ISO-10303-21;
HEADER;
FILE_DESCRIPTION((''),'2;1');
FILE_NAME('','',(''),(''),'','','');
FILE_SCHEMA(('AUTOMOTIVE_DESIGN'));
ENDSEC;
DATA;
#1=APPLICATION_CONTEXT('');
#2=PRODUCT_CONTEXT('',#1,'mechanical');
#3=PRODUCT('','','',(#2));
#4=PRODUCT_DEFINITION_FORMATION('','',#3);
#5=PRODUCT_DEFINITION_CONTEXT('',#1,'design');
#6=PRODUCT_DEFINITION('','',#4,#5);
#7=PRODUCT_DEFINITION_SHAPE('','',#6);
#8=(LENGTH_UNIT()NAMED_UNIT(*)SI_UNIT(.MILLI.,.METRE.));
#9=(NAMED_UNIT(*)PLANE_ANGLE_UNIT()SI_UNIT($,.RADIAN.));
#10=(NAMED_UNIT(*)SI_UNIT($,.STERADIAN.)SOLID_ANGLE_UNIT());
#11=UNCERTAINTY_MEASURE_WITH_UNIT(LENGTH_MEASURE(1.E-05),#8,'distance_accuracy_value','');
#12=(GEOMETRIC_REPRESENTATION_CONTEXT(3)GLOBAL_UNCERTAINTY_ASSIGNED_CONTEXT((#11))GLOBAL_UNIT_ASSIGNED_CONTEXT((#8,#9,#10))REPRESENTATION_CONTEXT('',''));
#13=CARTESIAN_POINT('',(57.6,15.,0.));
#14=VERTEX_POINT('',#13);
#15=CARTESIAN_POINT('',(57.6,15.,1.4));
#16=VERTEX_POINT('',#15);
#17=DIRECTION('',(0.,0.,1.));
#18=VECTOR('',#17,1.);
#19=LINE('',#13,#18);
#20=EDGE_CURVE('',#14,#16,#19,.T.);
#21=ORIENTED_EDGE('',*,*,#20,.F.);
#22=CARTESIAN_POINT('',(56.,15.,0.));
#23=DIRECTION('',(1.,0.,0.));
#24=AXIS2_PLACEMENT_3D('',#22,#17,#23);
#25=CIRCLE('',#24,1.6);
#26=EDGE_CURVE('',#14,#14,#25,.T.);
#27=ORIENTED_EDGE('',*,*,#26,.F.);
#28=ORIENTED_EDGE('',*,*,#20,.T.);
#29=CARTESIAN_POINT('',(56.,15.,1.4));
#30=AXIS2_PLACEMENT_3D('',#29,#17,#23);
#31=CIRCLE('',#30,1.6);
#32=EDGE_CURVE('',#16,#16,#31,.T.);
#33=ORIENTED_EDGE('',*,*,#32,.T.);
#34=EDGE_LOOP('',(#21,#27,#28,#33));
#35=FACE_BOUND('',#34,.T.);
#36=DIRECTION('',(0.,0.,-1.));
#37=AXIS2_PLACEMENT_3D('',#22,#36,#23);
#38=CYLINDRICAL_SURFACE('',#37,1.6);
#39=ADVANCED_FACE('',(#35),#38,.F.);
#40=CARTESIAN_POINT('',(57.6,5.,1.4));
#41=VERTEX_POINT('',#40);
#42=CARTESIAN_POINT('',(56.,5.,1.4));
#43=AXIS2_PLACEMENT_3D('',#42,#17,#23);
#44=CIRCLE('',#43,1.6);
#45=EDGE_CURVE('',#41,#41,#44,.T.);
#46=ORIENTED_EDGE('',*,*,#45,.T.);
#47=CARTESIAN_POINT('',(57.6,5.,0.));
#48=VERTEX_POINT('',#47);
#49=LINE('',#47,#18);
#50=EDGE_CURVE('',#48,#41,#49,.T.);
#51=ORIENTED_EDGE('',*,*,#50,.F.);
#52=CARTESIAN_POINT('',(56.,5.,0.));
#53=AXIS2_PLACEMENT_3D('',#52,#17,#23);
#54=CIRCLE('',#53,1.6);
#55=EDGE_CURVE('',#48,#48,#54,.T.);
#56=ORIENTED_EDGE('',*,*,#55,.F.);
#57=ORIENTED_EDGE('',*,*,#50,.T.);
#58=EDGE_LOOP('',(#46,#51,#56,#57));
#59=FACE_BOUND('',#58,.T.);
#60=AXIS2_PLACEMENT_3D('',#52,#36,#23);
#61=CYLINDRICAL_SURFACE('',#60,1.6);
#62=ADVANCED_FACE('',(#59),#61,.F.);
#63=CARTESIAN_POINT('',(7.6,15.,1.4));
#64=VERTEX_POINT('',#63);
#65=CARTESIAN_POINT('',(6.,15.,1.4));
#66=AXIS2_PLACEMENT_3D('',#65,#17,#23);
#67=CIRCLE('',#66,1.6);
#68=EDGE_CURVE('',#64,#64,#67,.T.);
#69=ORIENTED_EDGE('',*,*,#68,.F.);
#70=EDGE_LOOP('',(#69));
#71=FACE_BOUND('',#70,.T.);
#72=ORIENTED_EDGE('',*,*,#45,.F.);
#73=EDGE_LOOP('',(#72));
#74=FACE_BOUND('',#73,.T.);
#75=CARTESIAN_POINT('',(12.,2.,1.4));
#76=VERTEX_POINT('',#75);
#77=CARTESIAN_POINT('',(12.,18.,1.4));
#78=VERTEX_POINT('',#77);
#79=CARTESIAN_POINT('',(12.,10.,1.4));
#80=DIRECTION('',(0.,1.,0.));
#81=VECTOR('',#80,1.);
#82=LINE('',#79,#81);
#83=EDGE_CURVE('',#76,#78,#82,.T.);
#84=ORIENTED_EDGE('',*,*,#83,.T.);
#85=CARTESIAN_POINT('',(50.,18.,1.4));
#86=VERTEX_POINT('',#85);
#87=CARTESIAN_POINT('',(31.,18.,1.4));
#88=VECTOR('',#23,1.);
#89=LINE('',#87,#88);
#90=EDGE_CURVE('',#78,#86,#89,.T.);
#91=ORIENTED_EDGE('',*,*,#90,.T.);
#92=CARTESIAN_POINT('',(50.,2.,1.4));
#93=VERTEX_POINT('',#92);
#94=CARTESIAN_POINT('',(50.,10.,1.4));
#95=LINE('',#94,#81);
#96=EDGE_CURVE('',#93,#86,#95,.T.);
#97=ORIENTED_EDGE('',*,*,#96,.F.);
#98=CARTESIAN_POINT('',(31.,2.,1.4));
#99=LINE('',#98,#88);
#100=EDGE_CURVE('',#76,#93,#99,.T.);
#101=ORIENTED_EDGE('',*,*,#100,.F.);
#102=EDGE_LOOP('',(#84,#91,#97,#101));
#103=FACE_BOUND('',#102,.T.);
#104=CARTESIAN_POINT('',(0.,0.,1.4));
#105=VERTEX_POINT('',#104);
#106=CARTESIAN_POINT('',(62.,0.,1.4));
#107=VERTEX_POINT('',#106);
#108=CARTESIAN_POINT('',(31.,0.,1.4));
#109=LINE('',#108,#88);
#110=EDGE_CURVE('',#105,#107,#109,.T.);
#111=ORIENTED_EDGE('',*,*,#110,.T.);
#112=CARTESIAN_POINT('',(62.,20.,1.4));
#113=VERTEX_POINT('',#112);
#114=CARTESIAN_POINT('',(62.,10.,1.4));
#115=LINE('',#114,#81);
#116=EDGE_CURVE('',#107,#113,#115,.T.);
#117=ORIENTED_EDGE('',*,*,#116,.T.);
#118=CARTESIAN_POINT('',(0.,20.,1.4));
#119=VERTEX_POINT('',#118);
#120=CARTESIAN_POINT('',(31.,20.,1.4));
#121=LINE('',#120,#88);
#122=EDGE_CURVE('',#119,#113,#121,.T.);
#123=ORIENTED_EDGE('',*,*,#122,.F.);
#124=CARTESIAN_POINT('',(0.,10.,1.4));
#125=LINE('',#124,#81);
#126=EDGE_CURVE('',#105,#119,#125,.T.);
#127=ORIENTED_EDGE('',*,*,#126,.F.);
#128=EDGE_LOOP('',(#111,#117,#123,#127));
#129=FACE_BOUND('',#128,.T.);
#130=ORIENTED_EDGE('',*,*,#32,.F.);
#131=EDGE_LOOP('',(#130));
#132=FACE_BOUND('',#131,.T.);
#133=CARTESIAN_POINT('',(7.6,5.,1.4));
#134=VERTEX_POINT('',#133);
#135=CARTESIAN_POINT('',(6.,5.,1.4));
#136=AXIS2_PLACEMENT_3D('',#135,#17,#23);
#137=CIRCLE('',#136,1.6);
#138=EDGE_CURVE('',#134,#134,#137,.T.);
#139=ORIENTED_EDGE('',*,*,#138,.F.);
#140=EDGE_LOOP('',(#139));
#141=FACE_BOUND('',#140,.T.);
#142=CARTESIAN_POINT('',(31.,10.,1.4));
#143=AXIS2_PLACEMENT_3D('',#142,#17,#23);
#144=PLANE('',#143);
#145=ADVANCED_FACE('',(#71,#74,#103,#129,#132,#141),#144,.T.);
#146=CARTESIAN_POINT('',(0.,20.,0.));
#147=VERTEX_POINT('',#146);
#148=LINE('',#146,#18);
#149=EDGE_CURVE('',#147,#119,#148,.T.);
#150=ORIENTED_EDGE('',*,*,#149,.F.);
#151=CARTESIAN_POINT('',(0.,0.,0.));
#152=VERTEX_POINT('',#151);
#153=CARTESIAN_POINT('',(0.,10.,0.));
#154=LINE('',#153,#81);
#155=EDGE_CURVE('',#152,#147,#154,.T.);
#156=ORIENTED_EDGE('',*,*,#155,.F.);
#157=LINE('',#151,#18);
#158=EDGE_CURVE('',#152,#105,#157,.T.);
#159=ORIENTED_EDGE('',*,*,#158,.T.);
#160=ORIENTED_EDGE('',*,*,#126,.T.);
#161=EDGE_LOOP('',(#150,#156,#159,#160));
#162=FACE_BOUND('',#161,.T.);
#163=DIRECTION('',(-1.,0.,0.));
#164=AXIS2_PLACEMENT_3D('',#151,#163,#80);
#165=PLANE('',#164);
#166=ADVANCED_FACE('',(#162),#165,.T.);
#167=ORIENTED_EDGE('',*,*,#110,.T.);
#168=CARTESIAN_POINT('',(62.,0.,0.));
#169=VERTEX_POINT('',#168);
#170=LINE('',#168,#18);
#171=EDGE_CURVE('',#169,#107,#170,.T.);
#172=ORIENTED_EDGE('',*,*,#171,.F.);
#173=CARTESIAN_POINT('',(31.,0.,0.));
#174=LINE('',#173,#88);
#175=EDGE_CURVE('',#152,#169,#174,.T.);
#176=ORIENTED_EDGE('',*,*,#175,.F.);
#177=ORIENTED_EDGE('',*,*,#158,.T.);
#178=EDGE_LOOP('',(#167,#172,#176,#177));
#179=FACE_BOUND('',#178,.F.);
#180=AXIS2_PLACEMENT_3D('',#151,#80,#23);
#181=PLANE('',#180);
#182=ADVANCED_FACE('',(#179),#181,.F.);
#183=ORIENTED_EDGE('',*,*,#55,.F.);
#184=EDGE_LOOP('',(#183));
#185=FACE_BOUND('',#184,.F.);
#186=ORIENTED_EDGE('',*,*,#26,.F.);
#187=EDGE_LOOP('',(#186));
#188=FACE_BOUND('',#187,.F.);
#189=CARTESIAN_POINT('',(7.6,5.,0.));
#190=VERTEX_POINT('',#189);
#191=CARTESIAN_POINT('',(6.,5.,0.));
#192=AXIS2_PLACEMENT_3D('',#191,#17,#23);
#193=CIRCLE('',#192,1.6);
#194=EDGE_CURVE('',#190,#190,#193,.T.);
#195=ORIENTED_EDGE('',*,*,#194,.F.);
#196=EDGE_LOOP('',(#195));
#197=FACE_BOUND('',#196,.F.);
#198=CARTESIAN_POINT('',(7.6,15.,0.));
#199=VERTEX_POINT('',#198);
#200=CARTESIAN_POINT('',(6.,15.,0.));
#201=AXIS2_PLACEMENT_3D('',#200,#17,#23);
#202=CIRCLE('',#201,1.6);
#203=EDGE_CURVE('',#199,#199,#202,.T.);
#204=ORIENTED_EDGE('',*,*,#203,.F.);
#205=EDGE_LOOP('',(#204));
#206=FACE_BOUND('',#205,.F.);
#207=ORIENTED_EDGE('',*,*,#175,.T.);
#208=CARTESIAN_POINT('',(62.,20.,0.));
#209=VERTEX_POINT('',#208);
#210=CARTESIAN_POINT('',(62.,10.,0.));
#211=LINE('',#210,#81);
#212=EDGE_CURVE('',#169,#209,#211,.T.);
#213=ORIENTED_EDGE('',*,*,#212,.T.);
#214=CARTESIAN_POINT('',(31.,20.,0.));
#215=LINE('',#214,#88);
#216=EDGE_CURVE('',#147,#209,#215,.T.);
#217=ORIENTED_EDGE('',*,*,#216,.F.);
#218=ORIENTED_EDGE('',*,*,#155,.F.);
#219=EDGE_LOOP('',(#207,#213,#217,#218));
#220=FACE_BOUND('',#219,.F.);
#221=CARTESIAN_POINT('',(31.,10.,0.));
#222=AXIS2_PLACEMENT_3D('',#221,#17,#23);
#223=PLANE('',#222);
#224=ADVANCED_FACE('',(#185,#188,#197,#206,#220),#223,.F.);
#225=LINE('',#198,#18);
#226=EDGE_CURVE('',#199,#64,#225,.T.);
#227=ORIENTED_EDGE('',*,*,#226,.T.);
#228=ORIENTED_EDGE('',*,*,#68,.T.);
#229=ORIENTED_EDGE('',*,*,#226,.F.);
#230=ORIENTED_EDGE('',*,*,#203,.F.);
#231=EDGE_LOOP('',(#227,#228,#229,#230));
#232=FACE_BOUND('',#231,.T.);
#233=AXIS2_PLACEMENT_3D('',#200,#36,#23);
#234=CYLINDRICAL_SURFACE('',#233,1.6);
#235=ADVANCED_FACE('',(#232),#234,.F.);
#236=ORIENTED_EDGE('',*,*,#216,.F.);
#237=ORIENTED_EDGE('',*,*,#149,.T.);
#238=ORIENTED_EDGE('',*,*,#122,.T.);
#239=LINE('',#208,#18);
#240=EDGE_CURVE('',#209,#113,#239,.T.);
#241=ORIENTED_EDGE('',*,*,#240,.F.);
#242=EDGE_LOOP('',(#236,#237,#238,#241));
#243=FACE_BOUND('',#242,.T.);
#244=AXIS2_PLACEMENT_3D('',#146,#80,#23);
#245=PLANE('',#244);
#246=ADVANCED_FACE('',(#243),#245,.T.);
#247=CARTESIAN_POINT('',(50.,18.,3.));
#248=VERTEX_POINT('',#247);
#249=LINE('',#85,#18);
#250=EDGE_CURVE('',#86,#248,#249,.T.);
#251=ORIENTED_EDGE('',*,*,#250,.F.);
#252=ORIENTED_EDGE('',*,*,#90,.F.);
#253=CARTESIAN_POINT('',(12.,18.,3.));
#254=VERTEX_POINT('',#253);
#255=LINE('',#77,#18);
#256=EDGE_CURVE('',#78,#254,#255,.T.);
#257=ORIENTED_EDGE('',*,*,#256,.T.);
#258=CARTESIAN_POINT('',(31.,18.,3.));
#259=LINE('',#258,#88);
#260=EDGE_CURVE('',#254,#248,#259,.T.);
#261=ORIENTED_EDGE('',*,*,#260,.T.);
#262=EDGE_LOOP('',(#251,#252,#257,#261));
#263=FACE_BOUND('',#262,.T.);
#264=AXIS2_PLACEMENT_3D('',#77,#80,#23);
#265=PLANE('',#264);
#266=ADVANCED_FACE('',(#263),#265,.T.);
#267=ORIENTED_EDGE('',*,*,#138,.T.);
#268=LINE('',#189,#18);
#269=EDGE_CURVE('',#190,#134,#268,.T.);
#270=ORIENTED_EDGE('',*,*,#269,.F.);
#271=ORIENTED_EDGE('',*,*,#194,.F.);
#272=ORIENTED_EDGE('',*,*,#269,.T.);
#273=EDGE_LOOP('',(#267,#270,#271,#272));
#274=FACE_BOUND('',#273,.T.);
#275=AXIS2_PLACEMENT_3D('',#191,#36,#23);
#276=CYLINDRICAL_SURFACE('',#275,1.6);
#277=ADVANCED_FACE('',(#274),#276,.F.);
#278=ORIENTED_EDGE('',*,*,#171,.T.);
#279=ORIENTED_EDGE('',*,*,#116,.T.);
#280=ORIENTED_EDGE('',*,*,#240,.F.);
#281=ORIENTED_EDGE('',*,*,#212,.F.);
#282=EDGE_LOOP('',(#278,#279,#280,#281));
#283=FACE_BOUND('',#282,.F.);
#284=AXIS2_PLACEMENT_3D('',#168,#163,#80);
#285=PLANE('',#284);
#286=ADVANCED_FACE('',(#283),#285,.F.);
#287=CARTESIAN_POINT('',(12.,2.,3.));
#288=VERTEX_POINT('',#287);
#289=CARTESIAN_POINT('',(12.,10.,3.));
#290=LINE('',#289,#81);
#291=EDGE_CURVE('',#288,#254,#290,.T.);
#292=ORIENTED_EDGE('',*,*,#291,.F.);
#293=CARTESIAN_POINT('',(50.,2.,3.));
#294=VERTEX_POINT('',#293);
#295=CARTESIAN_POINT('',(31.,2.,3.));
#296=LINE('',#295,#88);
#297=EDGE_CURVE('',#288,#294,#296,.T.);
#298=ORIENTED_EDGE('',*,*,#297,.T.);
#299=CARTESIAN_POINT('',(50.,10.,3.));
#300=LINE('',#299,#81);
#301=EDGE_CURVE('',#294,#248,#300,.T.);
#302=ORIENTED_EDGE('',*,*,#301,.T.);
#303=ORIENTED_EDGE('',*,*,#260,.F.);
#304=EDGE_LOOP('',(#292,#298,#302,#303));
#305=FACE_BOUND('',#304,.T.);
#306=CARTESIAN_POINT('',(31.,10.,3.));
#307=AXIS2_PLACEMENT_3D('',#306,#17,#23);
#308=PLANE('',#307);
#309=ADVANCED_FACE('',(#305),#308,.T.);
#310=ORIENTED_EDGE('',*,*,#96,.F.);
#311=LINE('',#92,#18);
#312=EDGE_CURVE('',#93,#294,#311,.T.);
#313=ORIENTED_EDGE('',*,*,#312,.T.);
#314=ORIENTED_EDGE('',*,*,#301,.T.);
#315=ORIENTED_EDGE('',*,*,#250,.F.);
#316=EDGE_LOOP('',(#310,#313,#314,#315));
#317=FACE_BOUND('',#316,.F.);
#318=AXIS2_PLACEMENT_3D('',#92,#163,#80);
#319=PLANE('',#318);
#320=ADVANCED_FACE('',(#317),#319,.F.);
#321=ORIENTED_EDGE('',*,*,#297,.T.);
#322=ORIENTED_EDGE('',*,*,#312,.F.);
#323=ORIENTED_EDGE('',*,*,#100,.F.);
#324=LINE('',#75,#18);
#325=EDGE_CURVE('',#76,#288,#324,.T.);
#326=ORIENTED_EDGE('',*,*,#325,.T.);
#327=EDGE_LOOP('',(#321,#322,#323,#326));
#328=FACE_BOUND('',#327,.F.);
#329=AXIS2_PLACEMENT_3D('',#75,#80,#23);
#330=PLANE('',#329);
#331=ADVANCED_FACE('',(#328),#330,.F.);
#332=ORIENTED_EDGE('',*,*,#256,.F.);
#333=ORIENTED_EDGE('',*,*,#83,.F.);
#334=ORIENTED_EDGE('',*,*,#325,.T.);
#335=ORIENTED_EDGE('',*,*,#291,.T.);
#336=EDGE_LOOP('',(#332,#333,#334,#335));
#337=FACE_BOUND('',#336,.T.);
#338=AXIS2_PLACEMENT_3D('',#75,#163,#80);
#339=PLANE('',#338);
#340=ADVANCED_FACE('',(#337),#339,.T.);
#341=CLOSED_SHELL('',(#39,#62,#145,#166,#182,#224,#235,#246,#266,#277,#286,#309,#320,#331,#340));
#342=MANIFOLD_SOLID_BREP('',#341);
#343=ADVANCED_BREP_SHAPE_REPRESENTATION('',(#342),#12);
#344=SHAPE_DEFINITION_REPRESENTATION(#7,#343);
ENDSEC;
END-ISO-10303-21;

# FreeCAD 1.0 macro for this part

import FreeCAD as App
import Part
import Sketcher

V = App.Vector
Q = App.Units.Quantity

doc = App.newDocument("Part")
params = doc.addObject("Spreadsheet::Sheet", "Params")
for row, (alias, value) in enumerate([
    ("sketch1_diameter", "3.2 mm"),
    ("sketch1_width", "62 mm"),
    ("sketch1_height", "20 mm"),
    ("pad1_length", "1.4 mm"),
    ("sketch2_width", "38 mm"),
    ("sketch2_height", "16 mm"),
    ("pad2_length", "1.6 mm"),
], start=1):
    params.set(f"A{row}", alias)
    params.set(f"B{row}", "=" + value)
    params.setAlias(f"B{row}", alias)

body = doc.addObject("PartDesign::Body", "Body")

# Sketch on XY plane
sketch1 = body.newObject("Sketcher::SketchObject", "Sketch")
sketch1.AttachmentSupport = (doc.getObject("XY_Plane"), [""])
sketch1.MapMode = "FlatFace"
sketch1.addGeometry([
    Part.LineSegment(V(0, 20, 0), V(0, 0, 0)),  # 0
    Part.LineSegment(V(0, 0, 0), V(62, 0, 0)),  # 1
    Part.LineSegment(V(62, 0, 0), V(62, 20, 0)),  # 2
    Part.LineSegment(V(62, 20, 0), V(0, 20, 0)),  # 3
    Part.Circle(V(6, 5, 0), V(0, 0, 1), 1.6),  # 4
    Part.Circle(V(56, 5, 0), V(0, 0, 1), 1.6),  # 5
    Part.Circle(V(6, 15, 0), V(0, 0, 1), 1.6),  # 6
    Part.Circle(V(56, 15, 0), V(0, 0, 1), 1.6),  # 7
], False)
sketch1.addConstraint([
    Sketcher.Constraint("Coincident", 0, 2, 1, 1),
    Sketcher.Constraint("Coincident", 1, 2, 2, 1),
    Sketcher.Constraint("Coincident", 2, 2, 3, 1),
    Sketcher.Constraint("Coincident", 3, 2, 0, 1),
    Sketcher.Constraint("Vertical", 0),
    Sketcher.Constraint("Horizontal", 1),
    Sketcher.Constraint("Vertical", 2),
    Sketcher.Constraint("Horizontal", 3),
    Sketcher.Constraint("Coincident", 0, 2, -1, 1),
    Sketcher.Constraint("Equal", 4, 5),
    Sketcher.Constraint("Equal", 5, 6),
    Sketcher.Constraint("Equal", 6, 7),
    Sketcher.Constraint("Horizontal", 4, 3, 5, 3),
    Sketcher.Constraint("Horizontal", 6, 3, 7, 3),
    Sketcher.Constraint("Vertical", 4, 3, 6, 3),
    Sketcher.Constraint("Vertical", 5, 3, 7, 3),
    Sketcher.Constraint("Diameter", 4, Q("3.2 mm")),
    Sketcher.Constraint("DistanceX", 1, 1, 1, 2, Q("62 mm")),
    Sketcher.Constraint("DistanceY", 0, 2, 0, 1, Q("20 mm")),
    Sketcher.Constraint("DistanceX", -1, 1, 4, 3, Q("6 mm")),
    Sketcher.Constraint("DistanceY", -1, 1, 4, 3, Q("5 mm")),
    Sketcher.Constraint("DistanceX", -1, 1, 5, 3, Q("56 mm")),
    Sketcher.Constraint("DistanceY", -1, 1, 6, 3, Q("15 mm")),
])
sketch1.setExpression("Constraints[16]", "Params.sketch1_diameter")
sketch1.setExpression("Constraints[17]", "Params.sketch1_width")
sketch1.setExpression("Constraints[18]", "Params.sketch1_height")
pad1 = body.newObject("PartDesign::Pad", "Pad")
pad1.Profile = sketch1
pad1.setExpression("Length", "Params.pad1_length")

# Sketch on XY plane
sketch2 = body.newObject("Sketcher::SketchObject", "Sketch001")
sketch2.AttachmentSupport = (doc.getObject("XY_Plane"), [""])
sketch2.MapMode = "FlatFace"
sketch2.AttachmentOffset = App.Placement(V(0, 0, 1.4), App.Rotation())
sketch2.addGeometry([
    Part.LineSegment(V(12, 18, 0), V(12, 2, 0)),
    Part.LineSegment(V(12, 2, 0), V(50, 2, 0)),
    Part.LineSegment(V(50, 2, 0), V(50, 18, 0)),
    Part.LineSegment(V(50, 18, 0), V(12, 18, 0)),
], False)
sketch2.addConstraint([
    Sketcher.Constraint("Coincident", 0, 2, 1, 1),
    Sketcher.Constraint("Coincident", 1, 2, 2, 1),
    Sketcher.Constraint("Coincident", 2, 2, 3, 1),
    Sketcher.Constraint("Coincident", 3, 2, 0, 1),
    Sketcher.Constraint("Vertical", 0),
    Sketcher.Constraint("Horizontal", 1),
    Sketcher.Constraint("Vertical", 2),
    Sketcher.Constraint("Horizontal", 3),
    Sketcher.Constraint("DistanceX", 1, 1, 1, 2, Q("38 mm")),
    Sketcher.Constraint("DistanceY", 0, 2, 0, 1, Q("16 mm")),
    Sketcher.Constraint("DistanceX", -1, 1, 0, 2, Q("12 mm")),
    Sketcher.Constraint("DistanceY", -1, 1, 0, 2, Q("2 mm")),
])
sketch2.setExpression("Constraints[8]", "Params.sketch2_width")
sketch2.setExpression("Constraints[9]", "Params.sketch2_height")
pad2 = body.newObject("PartDesign::Pad", "Pad001")
pad2.Profile = sketch2
pad2.setExpression("Length", "Params.pad2_length")

doc.recompute()
